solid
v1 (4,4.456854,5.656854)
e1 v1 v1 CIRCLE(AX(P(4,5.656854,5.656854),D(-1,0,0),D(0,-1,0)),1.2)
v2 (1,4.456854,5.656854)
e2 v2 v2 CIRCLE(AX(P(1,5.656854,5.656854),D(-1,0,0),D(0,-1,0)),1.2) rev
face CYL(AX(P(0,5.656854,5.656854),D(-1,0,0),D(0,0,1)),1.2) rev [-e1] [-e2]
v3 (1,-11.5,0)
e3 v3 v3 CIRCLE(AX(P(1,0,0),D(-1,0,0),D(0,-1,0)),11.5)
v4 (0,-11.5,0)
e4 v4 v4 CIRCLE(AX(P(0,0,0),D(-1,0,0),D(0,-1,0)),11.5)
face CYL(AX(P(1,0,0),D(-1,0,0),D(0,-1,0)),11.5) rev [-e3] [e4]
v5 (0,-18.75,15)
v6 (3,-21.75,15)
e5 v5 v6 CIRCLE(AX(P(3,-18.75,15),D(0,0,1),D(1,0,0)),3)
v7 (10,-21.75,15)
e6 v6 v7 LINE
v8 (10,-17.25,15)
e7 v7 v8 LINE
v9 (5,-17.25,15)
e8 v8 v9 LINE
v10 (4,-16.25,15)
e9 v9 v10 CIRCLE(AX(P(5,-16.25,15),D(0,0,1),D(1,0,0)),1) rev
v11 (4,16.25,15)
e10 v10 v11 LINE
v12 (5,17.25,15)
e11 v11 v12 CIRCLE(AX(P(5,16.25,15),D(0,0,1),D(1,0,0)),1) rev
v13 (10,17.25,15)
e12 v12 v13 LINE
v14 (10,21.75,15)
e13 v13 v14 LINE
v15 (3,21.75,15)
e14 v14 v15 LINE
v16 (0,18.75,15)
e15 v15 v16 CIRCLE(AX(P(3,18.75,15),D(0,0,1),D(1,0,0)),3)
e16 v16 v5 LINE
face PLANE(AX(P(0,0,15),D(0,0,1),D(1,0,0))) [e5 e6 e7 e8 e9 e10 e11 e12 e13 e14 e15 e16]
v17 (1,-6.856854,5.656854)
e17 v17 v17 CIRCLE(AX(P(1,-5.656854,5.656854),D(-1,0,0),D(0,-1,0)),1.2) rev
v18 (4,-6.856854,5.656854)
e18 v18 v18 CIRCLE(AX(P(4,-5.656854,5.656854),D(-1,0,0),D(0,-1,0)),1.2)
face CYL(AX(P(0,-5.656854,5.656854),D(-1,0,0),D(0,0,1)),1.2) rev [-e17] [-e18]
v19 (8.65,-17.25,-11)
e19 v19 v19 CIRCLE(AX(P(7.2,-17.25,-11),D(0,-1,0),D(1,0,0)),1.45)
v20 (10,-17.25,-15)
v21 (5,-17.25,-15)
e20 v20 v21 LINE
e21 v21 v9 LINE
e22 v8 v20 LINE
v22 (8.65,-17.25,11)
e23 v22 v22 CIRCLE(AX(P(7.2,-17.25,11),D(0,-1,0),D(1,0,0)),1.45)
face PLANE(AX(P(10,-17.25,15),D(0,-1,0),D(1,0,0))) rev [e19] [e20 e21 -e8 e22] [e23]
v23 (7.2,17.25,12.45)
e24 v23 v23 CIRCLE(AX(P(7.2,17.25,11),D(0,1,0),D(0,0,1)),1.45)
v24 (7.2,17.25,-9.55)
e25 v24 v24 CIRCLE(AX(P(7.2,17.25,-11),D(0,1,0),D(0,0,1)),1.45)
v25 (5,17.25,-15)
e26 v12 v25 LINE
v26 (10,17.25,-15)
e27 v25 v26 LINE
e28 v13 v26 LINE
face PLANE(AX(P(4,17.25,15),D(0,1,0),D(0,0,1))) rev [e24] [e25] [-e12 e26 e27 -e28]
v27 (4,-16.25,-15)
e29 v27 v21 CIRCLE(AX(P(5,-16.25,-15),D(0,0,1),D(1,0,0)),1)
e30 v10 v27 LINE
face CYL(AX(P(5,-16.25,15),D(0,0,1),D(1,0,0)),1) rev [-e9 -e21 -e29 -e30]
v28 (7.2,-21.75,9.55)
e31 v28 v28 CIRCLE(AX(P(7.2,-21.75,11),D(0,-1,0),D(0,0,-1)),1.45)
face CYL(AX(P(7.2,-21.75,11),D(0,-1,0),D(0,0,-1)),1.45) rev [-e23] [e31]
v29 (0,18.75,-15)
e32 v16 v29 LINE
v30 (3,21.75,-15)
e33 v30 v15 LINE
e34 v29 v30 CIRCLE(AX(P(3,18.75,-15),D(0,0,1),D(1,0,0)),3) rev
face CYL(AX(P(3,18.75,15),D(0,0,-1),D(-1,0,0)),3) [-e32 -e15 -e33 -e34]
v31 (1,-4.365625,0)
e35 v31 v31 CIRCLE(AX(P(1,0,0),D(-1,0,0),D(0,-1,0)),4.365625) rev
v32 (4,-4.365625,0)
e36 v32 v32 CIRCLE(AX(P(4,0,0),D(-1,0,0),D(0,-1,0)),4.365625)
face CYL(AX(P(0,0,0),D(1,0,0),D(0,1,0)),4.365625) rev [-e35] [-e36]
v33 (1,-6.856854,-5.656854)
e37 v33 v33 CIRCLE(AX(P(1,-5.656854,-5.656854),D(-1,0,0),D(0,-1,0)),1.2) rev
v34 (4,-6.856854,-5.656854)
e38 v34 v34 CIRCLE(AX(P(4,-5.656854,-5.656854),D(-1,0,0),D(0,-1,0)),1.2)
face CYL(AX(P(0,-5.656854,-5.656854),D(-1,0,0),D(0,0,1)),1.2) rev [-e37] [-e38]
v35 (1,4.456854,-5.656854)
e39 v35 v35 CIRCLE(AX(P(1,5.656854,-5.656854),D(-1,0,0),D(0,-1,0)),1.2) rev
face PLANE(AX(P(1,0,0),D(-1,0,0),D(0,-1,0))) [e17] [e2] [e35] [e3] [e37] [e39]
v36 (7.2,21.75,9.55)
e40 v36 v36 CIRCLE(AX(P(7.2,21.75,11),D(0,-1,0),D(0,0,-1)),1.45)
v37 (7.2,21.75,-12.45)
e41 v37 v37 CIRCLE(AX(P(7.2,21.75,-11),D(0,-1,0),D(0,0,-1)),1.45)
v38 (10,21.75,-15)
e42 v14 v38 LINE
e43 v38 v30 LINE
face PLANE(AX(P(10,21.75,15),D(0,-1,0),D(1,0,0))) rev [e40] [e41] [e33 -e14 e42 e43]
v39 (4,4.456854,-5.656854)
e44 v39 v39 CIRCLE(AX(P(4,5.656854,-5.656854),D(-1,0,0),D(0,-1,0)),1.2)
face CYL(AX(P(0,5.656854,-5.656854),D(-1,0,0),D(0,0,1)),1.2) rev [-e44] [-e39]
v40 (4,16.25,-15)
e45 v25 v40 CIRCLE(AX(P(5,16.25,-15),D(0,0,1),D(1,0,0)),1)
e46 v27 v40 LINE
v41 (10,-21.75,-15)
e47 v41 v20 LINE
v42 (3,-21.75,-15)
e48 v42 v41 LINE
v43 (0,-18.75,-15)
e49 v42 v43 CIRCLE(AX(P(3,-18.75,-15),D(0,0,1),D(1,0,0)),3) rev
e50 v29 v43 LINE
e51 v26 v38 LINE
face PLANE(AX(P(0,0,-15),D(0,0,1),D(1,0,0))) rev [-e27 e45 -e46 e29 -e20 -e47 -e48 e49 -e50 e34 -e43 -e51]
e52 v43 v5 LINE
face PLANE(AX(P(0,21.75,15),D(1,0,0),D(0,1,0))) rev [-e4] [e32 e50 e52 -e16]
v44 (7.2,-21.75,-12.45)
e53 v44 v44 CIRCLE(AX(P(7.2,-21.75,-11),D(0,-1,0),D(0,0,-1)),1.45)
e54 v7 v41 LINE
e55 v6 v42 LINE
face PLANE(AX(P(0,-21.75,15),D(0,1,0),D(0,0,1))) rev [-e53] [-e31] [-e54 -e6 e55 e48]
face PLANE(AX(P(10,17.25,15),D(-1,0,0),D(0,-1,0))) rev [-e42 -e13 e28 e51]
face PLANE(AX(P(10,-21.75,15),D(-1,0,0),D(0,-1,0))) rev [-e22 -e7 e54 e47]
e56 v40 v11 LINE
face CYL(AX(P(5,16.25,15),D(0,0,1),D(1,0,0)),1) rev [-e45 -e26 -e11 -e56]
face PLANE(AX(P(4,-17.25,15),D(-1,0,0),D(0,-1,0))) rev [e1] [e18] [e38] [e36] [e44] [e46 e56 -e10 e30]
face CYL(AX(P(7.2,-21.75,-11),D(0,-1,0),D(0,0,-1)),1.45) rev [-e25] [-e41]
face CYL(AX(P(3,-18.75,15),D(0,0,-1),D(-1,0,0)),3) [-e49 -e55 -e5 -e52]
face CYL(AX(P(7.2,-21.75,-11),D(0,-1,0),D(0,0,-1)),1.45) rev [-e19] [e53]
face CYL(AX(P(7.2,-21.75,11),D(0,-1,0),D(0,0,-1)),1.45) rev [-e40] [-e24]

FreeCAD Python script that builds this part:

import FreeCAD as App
import Part
import Sketcher
from FreeCAD import Vector


def edges_at(feature, points):
    """Names of the edges that pass closest to the given points."""
    edges = feature.Shape.Edges
    near = lambda p: min(range(len(edges)), key=lambda i: edges[i].distToShape(Part.Vertex(*p))[0])
    return sorted({f"Edge{near(p) + 1}" for p in points})


def add_polygon(sketch, points):
    """Adds a closed chain of lines whose ends are joined by coincident constraints."""
    first, n = sketch.GeometryCount, len(points)
    for a, b in zip(points, points[1:] + points[:1]):
        sketch.addGeometry(Part.LineSegment(App.Vector(*a, 0), App.Vector(*b, 0)), False)
    for i in range(n):
        sketch.addConstraint(Sketcher.Constraint("Coincident", first + i, 2, first + (i + 1) % n, 1))

doc = App.newDocument("Part")
body = doc.addObject("PartDesign::Body", "Body")

sketch1 = body.newObject("Sketcher::SketchObject", "Sketch")
sketch1.AttachmentSupport = (doc.getObject("XY_Plane"), [""])
sketch1.MapMode = "FlatFace"
add_polygon(sketch1, [(0, 21.75), (0, -21.75), (10, -21.75), (10, -17.25), (4, -17.25), (4, 17.25), (10, 17.25), (10, 21.75)])
sketch1.addConstraint([
    Sketcher.Constraint("Vertical", 0),
    Sketcher.Constraint("Horizontal", 1),
    Sketcher.Constraint("Vertical", 2),
    Sketcher.Constraint("Horizontal", 3),
    Sketcher.Constraint("Vertical", 4),
    Sketcher.Constraint("Horizontal", 5),
    Sketcher.Constraint("Vertical", 6),
    Sketcher.Constraint("Horizontal", 7),
    Sketcher.Constraint("Symmetric", 0, 2, 7, 2, -1, 1),
    Sketcher.Constraint("Symmetric", 2, 2, 5, 2, -1),
    Sketcher.Constraint("DistanceX", 1, 1, 1, 2, 10.0),
    Sketcher.Constraint("DistanceX", 3, 2, 3, 1, 6.0),
    Sketcher.Constraint("DistanceY", 0, 2, 0, 1, 43.5),
    Sketcher.Constraint("DistanceY", 2, 1, 2, 2, 4.5),
])
pad1 = body.newObject("PartDesign::Pad", "Pad")
pad1.Profile = sketch1
pad1.Length = 30
pad1.Midplane = True

sketch2 = body.newObject("Sketcher::SketchObject", "Sketch001")
sketch2.AttachmentSupport = (doc.getObject("XZ_Plane"), [""])
sketch2.MapMode = "FlatFace"
sketch2.AttachmentOffset = App.Placement(Vector(0, 0, 21.75), App.Rotation())
sketch2.addGeometry([
    Part.Circle(Vector(7.2, 11, 0), Vector(0, 0, 1), 1.45),
    Part.Circle(Vector(7.2, -11, 0), Vector(0, 0, 1), 1.45),
], False)
sketch2.addConstraint([
    Sketcher.Constraint("Equal", 0, 1),
    Sketcher.Constraint("Symmetric", 0, 3, 1, 3, -1),
    Sketcher.Constraint("Diameter", 0, 2.9),
    Sketcher.Constraint("DistanceY", -1, 1, 0, 3, 11.0),
    Sketcher.Constraint("DistanceX", -1, 1, 0, 3, 7.2),
])
doc.recompute()
hole = body.newObject("PartDesign::Hole", "Hole")
hole.Profile = sketch2
hole.ThreadType = "None"
hole.Diameter = 2.9
hole.DepthType = "ThroughAll"

sketch3 = body.newObject("Sketcher::SketchObject", "Sketch002")
sketch3.AttachmentSupport = (doc.getObject("YZ_Plane"), [""])
sketch3.MapMode = "FlatFace"
sketch3.AttachmentOffset = App.Placement(Vector(0, 0, 4), App.Rotation())
sketch3.addGeometry(Part.Circle(Vector(0, 0, 0), Vector(0, 0, 1), 4.365625), False)
sketch3.addConstraint([
    Sketcher.Constraint("Coincident", 0, 3, -1, 1),
    Sketcher.Constraint("Diameter", 0, 8.73125),
])
pocket1 = body.newObject("PartDesign::Pocket", "Pocket")
pocket1.Profile = sketch3
pocket1.Type = "ThroughAll"
pocket1.Midplane = True

sketch4 = body.newObject("Sketcher::SketchObject", "Sketch003")
sketch4.AttachmentSupport = (doc.getObject("YZ_Plane"), [""])
sketch4.MapMode = "FlatFace"
sketch4.addGeometry([
    Part.Circle(Vector(5.656854, 5.656854, 0), Vector(0, 0, 1), 1.2),
    Part.Circle(Vector(-5.656854, 5.656854, 0), Vector(0, 0, 1), 1.2),
    Part.Circle(Vector(-5.656854, -5.656854, 0), Vector(0, 0, 1), 1.2),
    Part.Circle(Vector(5.656854, -5.656854, 0), Vector(0, 0, 1), 1.2),
    Part.Circle(Vector(0, 0, 0), Vector(0, 0, 1), 1.2),
], False)
sketch4.addConstraint([
    Sketcher.Constraint("Coincident", 4, 3, -1, 1),
    Sketcher.Constraint("Equal", 0, 1),
    Sketcher.Constraint("Equal", 1, 2),
    Sketcher.Constraint("Equal", 2, 3),
    Sketcher.Constraint("Equal", 3, 4),
    Sketcher.Constraint("Symmetric", 0, 3, 2, 3, -1, 1),
    Sketcher.Constraint("Symmetric", 1, 3, 3, 3, -1, 1),
    Sketcher.Constraint("Symmetric", 0, 3, 1, 3, -2),
    Sketcher.Constraint("Diameter", 0, 2.4),
    Sketcher.Constraint("DistanceX", 1, 3, 0, 3, 11.313708),
    Sketcher.Constraint("DistanceY", 2, 3, 1, 3, 11.313708),
])
doc.recompute()
hole2 = body.newObject("PartDesign::Hole", "Hole001")
hole2.Profile = sketch4
hole2.ThreadType = "None"
hole2.Diameter = 2.4
hole2.DepthType = "ThroughAll"
hole2.Reversed = True

sketch5 = body.newObject("Sketcher::SketchObject", "Sketch004")
sketch5.AttachmentSupport = (doc.getObject("YZ_Plane"), [""])
sketch5.MapMode = "FlatFace"
sketch5.addGeometry(Part.Circle(Vector(0, 0, 0), Vector(0, 0, 1), 11.5), False)
sketch5.addConstraint([
    Sketcher.Constraint("Coincident", 0, 3, -1, 1),
    Sketcher.Constraint("Diameter", 0, 23.0),
])
pocket2 = body.newObject("PartDesign::Pocket", "Pocket001")
pocket2.Profile = sketch5
pocket2.Length = 1
pocket2.Reversed = True
doc.recompute()

fillet = body.newObject("PartDesign::Fillet", "Fillet")
fillet.Base = (pocket2, edges_at(pocket2, [(4, 17.25, 0), (4, -17.25, 0)]))
fillet.Radius = 1
doc.recompute()

fillet2 = body.newObject("PartDesign::Fillet", "Fillet001")
fillet2.Base = (fillet, edges_at(fillet, [(0, -21.75, 0), (0, 21.75, 0)]))
fillet2.Radius = 3

doc.recompute()
